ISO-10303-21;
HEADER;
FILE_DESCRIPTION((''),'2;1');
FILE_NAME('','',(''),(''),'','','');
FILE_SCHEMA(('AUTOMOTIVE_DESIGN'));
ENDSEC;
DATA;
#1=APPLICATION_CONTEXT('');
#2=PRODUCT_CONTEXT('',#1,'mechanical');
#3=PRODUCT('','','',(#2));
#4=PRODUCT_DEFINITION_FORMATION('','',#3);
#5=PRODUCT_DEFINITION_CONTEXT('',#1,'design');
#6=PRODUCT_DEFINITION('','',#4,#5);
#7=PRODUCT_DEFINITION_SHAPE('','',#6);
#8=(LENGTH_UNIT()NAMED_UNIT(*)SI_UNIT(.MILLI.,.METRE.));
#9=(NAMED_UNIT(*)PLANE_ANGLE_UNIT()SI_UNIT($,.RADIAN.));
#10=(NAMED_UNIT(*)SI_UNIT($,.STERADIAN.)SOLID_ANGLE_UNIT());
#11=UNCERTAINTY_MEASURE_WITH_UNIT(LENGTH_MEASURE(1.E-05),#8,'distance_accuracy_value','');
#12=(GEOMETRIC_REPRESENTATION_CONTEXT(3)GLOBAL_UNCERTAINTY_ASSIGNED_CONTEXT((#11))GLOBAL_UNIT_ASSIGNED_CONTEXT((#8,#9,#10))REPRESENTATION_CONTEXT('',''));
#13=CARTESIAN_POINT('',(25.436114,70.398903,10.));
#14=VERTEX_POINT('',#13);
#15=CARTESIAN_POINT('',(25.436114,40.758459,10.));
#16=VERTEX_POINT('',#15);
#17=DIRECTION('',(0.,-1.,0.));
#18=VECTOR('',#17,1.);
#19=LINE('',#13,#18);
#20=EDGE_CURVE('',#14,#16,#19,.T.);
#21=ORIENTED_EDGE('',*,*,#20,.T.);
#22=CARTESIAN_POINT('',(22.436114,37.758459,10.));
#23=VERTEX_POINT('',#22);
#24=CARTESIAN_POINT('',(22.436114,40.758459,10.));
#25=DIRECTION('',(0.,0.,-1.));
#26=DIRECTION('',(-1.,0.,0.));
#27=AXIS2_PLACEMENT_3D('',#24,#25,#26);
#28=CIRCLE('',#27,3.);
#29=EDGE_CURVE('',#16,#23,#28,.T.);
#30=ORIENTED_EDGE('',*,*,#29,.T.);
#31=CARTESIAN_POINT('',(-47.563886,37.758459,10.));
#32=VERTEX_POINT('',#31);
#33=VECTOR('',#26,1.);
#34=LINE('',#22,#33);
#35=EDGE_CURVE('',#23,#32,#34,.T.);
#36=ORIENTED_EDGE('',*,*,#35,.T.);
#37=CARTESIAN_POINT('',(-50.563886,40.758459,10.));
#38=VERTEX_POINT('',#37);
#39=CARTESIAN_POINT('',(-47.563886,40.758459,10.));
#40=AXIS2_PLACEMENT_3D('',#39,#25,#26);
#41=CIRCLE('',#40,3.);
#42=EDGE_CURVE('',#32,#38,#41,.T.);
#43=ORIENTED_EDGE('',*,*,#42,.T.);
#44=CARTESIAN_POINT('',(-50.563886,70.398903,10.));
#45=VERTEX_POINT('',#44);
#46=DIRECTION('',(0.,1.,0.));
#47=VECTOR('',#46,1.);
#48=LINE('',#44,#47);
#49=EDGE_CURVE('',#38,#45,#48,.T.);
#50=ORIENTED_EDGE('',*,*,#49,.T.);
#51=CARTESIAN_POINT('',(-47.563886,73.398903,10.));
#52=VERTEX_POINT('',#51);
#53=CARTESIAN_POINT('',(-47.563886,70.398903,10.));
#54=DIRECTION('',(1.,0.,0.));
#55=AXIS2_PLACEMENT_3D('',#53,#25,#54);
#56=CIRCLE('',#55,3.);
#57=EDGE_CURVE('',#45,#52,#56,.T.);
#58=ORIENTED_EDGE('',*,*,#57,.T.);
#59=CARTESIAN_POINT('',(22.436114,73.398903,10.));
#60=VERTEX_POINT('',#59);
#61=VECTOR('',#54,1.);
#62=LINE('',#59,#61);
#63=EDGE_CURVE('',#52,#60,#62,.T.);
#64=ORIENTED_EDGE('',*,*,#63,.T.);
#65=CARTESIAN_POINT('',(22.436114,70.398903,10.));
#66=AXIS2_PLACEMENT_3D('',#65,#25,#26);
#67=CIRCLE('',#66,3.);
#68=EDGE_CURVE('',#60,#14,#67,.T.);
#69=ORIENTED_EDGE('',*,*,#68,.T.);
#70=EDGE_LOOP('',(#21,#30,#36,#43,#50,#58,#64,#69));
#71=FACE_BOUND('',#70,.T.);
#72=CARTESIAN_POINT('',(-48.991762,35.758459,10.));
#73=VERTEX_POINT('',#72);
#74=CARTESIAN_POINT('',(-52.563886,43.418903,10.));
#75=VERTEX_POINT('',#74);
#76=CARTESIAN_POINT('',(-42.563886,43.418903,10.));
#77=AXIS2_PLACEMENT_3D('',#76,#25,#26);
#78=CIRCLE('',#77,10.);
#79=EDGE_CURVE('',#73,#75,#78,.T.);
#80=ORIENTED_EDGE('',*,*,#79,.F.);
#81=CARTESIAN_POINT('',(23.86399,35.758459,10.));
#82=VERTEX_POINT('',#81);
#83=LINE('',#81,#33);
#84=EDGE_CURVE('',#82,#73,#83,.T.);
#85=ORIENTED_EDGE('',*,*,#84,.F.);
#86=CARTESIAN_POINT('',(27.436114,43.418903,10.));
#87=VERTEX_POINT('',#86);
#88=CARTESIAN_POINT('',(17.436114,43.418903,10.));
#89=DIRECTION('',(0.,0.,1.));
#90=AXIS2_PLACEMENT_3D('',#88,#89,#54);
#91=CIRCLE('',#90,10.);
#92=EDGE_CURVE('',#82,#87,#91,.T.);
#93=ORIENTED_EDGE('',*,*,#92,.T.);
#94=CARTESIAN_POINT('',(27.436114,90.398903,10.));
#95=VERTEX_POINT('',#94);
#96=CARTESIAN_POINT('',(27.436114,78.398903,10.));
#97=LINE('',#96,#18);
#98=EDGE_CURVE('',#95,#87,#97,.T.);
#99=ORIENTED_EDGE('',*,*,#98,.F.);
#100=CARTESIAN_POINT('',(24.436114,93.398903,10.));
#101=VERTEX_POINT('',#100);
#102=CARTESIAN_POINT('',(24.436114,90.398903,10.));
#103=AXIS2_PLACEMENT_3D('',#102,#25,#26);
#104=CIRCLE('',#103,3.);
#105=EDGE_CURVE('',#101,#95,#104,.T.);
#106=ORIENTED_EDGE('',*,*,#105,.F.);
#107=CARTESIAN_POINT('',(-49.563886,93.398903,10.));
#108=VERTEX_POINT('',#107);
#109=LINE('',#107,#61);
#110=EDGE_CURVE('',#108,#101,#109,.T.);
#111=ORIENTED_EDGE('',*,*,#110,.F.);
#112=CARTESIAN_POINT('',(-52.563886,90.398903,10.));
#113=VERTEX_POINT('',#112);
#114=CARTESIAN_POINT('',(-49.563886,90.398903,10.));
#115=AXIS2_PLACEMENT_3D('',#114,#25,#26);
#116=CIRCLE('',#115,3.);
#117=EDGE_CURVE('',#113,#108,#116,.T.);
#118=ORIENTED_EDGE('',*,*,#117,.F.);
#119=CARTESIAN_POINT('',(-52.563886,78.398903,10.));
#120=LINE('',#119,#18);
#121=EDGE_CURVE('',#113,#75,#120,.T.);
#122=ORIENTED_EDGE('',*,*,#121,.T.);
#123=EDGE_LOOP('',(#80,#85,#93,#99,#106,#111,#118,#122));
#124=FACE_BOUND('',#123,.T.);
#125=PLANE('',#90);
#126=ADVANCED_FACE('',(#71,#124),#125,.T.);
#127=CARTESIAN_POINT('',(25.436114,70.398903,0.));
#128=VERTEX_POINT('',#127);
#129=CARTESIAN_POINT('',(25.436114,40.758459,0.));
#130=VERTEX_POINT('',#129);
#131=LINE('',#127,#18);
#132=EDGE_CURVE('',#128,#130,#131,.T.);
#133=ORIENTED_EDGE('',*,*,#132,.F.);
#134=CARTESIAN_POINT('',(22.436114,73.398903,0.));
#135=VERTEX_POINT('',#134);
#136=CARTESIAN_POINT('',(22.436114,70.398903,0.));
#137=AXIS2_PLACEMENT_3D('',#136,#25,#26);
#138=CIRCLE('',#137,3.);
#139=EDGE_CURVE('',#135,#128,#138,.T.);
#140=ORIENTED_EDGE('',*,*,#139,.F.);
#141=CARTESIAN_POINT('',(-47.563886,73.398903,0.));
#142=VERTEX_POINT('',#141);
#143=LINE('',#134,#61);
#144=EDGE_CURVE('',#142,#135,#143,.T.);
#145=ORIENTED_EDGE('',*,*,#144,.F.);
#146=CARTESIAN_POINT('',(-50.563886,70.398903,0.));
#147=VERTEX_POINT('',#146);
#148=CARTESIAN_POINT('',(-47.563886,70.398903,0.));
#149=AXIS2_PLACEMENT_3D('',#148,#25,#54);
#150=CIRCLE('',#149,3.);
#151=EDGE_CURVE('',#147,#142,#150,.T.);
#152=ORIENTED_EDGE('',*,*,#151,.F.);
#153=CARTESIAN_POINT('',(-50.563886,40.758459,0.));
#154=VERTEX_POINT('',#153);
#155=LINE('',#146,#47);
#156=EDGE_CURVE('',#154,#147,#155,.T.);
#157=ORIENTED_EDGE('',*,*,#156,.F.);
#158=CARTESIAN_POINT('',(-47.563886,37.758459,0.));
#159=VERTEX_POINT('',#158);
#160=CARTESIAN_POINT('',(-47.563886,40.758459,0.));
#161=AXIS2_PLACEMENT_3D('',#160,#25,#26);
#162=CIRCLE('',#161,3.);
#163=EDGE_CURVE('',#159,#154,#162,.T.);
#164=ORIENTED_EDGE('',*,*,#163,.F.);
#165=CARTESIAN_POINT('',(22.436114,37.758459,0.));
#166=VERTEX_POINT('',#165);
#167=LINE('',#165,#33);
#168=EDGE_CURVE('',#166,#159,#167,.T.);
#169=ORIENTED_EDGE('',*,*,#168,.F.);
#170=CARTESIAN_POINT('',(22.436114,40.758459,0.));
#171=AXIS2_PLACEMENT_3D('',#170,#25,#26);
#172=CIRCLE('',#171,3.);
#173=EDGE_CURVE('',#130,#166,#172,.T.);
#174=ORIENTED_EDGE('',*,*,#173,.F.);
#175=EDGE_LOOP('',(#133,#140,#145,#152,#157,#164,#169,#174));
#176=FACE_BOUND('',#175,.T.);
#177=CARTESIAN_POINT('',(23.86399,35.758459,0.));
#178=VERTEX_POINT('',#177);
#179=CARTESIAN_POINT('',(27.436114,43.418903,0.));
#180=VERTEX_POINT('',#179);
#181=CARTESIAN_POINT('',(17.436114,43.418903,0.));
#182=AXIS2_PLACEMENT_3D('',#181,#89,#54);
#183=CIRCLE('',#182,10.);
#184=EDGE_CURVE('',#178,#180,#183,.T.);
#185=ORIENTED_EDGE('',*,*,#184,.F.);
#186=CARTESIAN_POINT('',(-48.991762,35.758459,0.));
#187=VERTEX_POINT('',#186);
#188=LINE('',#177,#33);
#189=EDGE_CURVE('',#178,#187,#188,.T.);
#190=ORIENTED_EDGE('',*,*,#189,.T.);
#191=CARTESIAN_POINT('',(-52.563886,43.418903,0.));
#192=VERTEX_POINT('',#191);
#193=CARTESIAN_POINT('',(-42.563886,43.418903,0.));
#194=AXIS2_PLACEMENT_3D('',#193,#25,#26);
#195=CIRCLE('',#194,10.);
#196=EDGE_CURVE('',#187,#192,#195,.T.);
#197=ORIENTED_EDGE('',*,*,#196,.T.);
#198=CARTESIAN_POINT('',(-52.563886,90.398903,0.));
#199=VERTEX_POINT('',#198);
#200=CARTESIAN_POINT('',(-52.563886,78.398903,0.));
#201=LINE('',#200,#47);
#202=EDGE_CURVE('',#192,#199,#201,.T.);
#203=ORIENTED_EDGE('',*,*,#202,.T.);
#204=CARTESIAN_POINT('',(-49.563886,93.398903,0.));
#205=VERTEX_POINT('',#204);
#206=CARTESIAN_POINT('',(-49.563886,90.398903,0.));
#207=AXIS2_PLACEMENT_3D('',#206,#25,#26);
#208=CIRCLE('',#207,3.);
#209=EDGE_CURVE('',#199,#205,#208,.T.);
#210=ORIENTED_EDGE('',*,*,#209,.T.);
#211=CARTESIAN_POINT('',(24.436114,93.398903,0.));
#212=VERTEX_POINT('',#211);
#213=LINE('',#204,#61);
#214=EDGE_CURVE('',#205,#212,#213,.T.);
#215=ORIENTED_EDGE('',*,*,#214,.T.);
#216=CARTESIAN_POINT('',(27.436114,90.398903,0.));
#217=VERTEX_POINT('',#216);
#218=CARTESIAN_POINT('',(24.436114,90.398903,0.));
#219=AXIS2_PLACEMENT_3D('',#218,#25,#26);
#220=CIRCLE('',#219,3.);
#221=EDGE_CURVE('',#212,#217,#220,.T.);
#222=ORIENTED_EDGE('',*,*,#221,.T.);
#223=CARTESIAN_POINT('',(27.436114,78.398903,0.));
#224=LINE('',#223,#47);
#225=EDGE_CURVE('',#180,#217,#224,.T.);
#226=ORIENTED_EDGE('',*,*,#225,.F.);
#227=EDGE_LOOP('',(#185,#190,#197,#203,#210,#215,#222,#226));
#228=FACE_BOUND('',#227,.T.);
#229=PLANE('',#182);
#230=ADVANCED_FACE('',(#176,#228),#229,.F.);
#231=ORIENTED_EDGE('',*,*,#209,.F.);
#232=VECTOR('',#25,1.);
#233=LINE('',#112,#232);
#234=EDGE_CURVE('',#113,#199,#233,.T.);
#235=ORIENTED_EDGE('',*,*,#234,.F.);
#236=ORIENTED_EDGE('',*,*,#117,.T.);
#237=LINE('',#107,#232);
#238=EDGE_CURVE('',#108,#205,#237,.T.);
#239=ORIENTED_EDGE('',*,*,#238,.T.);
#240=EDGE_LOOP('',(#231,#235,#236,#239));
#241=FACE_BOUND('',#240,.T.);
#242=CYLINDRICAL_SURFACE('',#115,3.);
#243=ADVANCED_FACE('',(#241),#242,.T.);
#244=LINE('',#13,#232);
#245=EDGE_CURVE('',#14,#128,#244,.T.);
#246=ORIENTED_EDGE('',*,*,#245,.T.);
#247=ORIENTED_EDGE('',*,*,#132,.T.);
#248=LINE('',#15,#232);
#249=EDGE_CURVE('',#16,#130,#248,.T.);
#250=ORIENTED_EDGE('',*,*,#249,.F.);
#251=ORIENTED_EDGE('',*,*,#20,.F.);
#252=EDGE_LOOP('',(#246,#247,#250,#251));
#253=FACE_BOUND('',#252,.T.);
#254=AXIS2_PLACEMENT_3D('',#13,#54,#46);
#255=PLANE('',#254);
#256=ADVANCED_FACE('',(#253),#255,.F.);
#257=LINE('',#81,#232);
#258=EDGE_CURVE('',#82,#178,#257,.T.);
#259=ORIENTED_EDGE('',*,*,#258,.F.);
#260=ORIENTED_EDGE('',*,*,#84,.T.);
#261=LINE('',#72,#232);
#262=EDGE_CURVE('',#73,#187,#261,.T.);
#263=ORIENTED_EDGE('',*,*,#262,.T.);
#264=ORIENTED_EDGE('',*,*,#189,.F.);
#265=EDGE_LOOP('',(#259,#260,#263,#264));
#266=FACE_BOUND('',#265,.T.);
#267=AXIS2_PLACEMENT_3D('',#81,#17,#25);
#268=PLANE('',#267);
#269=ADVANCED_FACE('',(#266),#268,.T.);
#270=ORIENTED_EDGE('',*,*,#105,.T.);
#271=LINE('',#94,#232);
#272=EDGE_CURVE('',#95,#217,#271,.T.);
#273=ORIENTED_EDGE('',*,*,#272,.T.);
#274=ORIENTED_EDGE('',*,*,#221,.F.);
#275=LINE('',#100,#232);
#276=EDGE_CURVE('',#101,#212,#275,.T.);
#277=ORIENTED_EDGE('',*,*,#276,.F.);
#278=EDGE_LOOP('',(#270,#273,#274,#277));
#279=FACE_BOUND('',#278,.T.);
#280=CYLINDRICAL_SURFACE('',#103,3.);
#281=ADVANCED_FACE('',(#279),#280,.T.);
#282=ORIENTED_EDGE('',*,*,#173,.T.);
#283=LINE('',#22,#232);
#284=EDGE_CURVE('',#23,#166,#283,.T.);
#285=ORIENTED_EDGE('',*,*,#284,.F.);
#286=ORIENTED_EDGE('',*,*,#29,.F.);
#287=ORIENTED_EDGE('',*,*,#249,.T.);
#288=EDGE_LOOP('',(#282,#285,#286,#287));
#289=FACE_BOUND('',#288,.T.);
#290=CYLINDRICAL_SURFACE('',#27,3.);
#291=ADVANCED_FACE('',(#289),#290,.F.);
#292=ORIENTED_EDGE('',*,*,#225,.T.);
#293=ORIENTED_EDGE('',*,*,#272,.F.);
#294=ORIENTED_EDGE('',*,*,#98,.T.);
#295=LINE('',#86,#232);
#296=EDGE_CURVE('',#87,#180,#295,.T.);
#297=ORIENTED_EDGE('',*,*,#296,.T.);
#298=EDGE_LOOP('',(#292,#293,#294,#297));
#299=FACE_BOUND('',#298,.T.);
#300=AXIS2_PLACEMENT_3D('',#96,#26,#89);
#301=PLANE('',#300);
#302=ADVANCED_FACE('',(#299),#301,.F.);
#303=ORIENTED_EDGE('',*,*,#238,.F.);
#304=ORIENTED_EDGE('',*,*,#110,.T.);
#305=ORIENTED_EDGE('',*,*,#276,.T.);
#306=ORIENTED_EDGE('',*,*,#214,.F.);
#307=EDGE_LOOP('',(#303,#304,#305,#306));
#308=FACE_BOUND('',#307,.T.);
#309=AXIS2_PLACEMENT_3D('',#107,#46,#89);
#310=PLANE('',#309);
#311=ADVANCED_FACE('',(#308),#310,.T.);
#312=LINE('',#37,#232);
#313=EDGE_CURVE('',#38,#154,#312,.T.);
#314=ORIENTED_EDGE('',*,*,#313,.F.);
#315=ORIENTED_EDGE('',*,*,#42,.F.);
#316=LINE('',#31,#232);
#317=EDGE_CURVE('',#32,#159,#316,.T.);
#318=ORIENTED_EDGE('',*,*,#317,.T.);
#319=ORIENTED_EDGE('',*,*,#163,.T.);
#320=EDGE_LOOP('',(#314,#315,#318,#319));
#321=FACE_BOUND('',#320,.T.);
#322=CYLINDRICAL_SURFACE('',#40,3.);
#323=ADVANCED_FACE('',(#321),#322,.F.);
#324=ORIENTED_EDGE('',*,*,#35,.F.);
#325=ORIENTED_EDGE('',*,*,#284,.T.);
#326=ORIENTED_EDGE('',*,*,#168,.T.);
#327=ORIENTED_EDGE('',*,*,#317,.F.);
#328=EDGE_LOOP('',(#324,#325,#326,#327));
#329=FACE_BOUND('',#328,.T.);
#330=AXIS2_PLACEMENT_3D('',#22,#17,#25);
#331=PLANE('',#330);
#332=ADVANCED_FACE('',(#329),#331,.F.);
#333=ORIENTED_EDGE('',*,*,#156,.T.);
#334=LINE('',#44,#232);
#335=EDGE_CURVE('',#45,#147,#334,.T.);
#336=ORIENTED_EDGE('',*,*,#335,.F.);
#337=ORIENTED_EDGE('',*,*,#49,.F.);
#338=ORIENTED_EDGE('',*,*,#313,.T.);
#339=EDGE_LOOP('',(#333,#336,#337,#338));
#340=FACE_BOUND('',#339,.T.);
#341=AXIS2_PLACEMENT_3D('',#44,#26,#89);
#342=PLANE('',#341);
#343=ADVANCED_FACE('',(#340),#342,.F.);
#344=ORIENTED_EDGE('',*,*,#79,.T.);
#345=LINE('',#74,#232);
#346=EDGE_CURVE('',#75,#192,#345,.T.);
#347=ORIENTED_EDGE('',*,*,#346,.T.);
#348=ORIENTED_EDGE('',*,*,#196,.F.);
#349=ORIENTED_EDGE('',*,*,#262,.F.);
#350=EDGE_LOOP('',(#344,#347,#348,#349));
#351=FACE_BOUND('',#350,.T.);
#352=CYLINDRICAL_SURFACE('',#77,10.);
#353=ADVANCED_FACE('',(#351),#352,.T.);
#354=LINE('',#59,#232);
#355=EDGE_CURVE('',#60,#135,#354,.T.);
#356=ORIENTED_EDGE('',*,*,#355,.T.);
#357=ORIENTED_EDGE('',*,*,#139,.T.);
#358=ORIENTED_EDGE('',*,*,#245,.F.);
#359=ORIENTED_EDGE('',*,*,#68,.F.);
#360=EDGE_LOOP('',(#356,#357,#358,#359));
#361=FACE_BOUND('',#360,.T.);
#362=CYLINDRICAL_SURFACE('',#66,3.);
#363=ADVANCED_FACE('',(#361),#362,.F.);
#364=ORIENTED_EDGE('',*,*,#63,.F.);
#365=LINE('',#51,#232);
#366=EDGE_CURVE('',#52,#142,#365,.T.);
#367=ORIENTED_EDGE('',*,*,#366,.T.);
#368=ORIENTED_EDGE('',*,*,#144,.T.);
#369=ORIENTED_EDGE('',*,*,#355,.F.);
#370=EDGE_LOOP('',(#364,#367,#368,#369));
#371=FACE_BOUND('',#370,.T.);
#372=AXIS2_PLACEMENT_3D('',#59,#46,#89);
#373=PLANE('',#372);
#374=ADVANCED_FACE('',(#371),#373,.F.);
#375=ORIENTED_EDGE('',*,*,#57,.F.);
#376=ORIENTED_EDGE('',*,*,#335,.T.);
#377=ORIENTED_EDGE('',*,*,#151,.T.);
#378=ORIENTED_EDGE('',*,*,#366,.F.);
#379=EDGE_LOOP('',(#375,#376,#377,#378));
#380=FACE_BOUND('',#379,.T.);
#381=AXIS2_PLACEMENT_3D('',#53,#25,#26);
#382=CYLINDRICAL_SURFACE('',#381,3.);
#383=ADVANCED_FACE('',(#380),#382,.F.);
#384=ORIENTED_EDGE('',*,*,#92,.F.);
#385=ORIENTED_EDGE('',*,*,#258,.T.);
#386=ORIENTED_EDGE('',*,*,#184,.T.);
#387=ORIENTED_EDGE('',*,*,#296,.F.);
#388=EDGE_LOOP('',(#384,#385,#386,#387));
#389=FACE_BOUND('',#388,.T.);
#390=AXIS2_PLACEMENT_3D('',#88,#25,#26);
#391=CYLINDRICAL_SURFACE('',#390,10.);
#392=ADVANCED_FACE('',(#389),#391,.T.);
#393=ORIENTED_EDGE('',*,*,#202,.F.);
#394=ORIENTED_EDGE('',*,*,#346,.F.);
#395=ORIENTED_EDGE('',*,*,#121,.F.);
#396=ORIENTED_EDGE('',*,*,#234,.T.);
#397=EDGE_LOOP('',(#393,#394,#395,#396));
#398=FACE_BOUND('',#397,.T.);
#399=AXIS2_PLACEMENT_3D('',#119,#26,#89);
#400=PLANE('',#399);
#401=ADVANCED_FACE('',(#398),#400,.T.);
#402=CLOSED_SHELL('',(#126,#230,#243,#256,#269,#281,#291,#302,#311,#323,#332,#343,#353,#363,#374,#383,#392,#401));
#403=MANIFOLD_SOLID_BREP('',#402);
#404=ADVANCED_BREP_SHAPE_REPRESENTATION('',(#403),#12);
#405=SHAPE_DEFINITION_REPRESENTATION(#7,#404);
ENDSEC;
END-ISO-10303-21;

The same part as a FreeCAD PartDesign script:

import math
import FreeCAD as App
import Part
import Sketcher

V = App.Vector

doc = App.newDocument("Part")
params = doc.addObject("Spreadsheet::Sheet", "Params")
for row, (alias, value) in enumerate([
    ("sketch1_radius", "3 mm"),
    ("sketch1_radius2", "10 mm"),
    ("sketch1_width", "74 mm"),
    ("sketch1_height", "46.98 mm"),
    ("pad1_length", "10 mm"),
    ("sketch2_radius", "3 mm"),
    ("sketch2_width", "70 mm"),
    ("pocket1_length", "10 mm"),
], start=1):
    params.set(f"A{row}", alias)
    params.set(f"B{row}", "=" + value)
    params.setAlias(f"B{row}", alias)

body = doc.addObject("PartDesign::Body", "Body")

# Sketch on XY plane
sketch1 = doc.addObject("Sketcher::SketchObject", "Sketch")
body.addObject(sketch1)
sketch1.AttachmentSupport = (doc.XY_Plane, [""])
sketch1.MapMode = "FlatFace"
sketch1.addGeometry([
    Part.LineSegment(V(24.4, 93.4, 0), V(-49.6, 93.4, 0)),  # 0
    Part.ArcOfCircle(Part.Circle(V(-49.6, 90.4, 0), V(0, 0, 1), 3), math.radians(90), math.radians(180)),  # 1
    Part.LineSegment(V(-52.6, 90.4, 0), V(-52.6, 43.4, 0)),  # 2
    Part.ArcOfCircle(Part.Circle(V(-42.6, 43.4, 0), V(0, 0, 1), 10), math.radians(-180), math.radians(-130)),  # 3
    Part.LineSegment(V(-49, 35.8, 0), V(23.9, 35.8, 0)),  # 4
    Part.ArcOfCircle(Part.Circle(V(17.4, 43.4, 0), V(0, 0, 1), 10), math.radians(-50), math.radians(0)),  # 5
    Part.LineSegment(V(27.4, 43.4, 0), V(27.4, 90.4, 0)),  # 6
    Part.ArcOfCircle(Part.Circle(V(24.4, 90.4, 0), V(0, 0, 1), 3), math.radians(0), math.radians(90)),  # 7
], False)
sketch1.addConstraint([
    Sketcher.Constraint("Tangent", 0, 2, 1, 1),
    Sketcher.Constraint("Tangent", 1, 2, 2, 1),
    Sketcher.Constraint("Tangent", 2, 2, 3, 1),
    Sketcher.Constraint("Coincident", 3, 2, 4, 1),
    Sketcher.Constraint("Coincident", 4, 2, 5, 1),
    Sketcher.Constraint("Tangent", 5, 2, 6, 1),
    Sketcher.Constraint("Tangent", 6, 2, 7, 1),
    Sketcher.Constraint("Tangent", 7, 2, 0, 1),
    Sketcher.Constraint("Horizontal", 0),
    Sketcher.Constraint("Vertical", 2),
    Sketcher.Constraint("Horizontal", 4),
    Sketcher.Constraint("Vertical", 6),
    Sketcher.Constraint("Equal", 3, 5),
    Sketcher.Constraint("Equal", 1, 7),
    Sketcher.Constraint("Horizontal", 3, 3, 5, 3),
    Sketcher.Constraint("Radius", 1, 3.0),
    Sketcher.Constraint("Radius", 3, 10.0),
    Sketcher.Constraint("DistanceX", 0, 2, 0, 1, 74.0),
    Sketcher.Constraint("DistanceY", 2, 2, 2, 1, 46.98),
    Sketcher.Constraint("DistanceX", 4, 1, 4, 2, 72.855752),
    Sketcher.Constraint("DistanceY", -1, 1, 3, 2, 35.758459),
    Sketcher.Constraint("DistanceX", -1, 1, 4, 2, 23.86399),
])
sketch1.setExpression("Constraints[15]", "Params.sketch1_radius")
sketch1.setExpression("Constraints[16]", "Params.sketch1_radius2")
sketch1.setExpression("Constraints[17]", "Params.sketch1_width")
sketch1.setExpression("Constraints[18]", "Params.sketch1_height")
pad1 = doc.addObject("PartDesign::Pad", "Pad")
body.addObject(pad1)
pad1.Profile = sketch1
pad1.setExpression("Length", "Params.pad1_length")

# Sketch on XY plane
sketch2 = doc.addObject("Sketcher::SketchObject", "Sketch001")
body.addObject(sketch2)
sketch2.AttachmentSupport = (doc.XY_Plane, [""])
sketch2.MapMode = "FlatFace"
sketch2.addGeometry([
    Part.LineSegment(V(-47.6, 73.4, 0), V(22.4, 73.4, 0)),  # 0
    Part.ArcOfCircle(Part.Circle(V(22.4, 70.4, 0), V(0, 0, 1), 3), math.radians(0), math.radians(90)),  # 1
    Part.LineSegment(V(25.4, 70.4, 0), V(25.4, 40.8, 0)),  # 2
    Part.ArcOfCircle(Part.Circle(V(22.4, 40.8, 0), V(0, 0, 1), 3), math.radians(-90), math.radians(0)),  # 3
    Part.LineSegment(V(22.4, 37.8, 0), V(-47.6, 37.8, 0)),  # 4
    Part.ArcOfCircle(Part.Circle(V(-47.6, 40.8, 0), V(0, 0, 1), 3), math.radians(180), math.radians(270)),  # 5
    Part.LineSegment(V(-50.6, 40.8, 0), V(-50.6, 70.4, 0)),  # 6
    Part.ArcOfCircle(Part.Circle(V(-47.6, 70.4, 0), V(0, 0, 1), 3), math.radians(90), math.radians(180)),  # 7
], False)
sketch2.addConstraint([
    Sketcher.Constraint("Tangent", 0, 2, 1, 2),
    Sketcher.Constraint("Tangent", 1, 1, 2, 1),
    Sketcher.Constraint("Tangent", 2, 2, 3, 2),
    Sketcher.Constraint("Tangent", 3, 1, 4, 1),
    Sketcher.Constraint("Tangent", 4, 2, 5, 2),
    Sketcher.Constraint("Tangent", 5, 1, 6, 1),
    Sketcher.Constraint("Tangent", 6, 2, 7, 2),
    Sketcher.Constraint("Tangent", 7, 1, 0, 1),
    Sketcher.Constraint("Horizontal", 0),
    Sketcher.Constraint("Vertical", 2),
    Sketcher.Constraint("Horizontal", 4),
    Sketcher.Constraint("Vertical", 6),
    Sketcher.Constraint("Equal", 1, 3),
    Sketcher.Constraint("Equal", 3, 5),
    Sketcher.Constraint("Equal", 5, 7),
    Sketcher.Constraint("Radius", 1, 3.0),
    Sketcher.Constraint("DistanceX", 0, 1, 0, 2, 70.0),
    Sketcher.Constraint("DistanceY", 2, 2, 2, 1, 29.640444),
    Sketcher.Constraint("DistanceY", -1, 1, 3, 3, 40.758459),
    Sketcher.Constraint("DistanceX", -1, 1, 1, 3, 22.436114),
])
sketch2.setExpression("Constraints[15]", "Params.sketch2_radius")
sketch2.setExpression("Constraints[16]", "Params.sketch2_width")
pocket1 = doc.addObject("PartDesign::Pocket", "Pocket")
body.addObject(pocket1)
pocket1.Profile = sketch2
pocket1.setExpression("Length", "Params.pocket1_length")
pocket1.Reversed = True

doc.recompute()
